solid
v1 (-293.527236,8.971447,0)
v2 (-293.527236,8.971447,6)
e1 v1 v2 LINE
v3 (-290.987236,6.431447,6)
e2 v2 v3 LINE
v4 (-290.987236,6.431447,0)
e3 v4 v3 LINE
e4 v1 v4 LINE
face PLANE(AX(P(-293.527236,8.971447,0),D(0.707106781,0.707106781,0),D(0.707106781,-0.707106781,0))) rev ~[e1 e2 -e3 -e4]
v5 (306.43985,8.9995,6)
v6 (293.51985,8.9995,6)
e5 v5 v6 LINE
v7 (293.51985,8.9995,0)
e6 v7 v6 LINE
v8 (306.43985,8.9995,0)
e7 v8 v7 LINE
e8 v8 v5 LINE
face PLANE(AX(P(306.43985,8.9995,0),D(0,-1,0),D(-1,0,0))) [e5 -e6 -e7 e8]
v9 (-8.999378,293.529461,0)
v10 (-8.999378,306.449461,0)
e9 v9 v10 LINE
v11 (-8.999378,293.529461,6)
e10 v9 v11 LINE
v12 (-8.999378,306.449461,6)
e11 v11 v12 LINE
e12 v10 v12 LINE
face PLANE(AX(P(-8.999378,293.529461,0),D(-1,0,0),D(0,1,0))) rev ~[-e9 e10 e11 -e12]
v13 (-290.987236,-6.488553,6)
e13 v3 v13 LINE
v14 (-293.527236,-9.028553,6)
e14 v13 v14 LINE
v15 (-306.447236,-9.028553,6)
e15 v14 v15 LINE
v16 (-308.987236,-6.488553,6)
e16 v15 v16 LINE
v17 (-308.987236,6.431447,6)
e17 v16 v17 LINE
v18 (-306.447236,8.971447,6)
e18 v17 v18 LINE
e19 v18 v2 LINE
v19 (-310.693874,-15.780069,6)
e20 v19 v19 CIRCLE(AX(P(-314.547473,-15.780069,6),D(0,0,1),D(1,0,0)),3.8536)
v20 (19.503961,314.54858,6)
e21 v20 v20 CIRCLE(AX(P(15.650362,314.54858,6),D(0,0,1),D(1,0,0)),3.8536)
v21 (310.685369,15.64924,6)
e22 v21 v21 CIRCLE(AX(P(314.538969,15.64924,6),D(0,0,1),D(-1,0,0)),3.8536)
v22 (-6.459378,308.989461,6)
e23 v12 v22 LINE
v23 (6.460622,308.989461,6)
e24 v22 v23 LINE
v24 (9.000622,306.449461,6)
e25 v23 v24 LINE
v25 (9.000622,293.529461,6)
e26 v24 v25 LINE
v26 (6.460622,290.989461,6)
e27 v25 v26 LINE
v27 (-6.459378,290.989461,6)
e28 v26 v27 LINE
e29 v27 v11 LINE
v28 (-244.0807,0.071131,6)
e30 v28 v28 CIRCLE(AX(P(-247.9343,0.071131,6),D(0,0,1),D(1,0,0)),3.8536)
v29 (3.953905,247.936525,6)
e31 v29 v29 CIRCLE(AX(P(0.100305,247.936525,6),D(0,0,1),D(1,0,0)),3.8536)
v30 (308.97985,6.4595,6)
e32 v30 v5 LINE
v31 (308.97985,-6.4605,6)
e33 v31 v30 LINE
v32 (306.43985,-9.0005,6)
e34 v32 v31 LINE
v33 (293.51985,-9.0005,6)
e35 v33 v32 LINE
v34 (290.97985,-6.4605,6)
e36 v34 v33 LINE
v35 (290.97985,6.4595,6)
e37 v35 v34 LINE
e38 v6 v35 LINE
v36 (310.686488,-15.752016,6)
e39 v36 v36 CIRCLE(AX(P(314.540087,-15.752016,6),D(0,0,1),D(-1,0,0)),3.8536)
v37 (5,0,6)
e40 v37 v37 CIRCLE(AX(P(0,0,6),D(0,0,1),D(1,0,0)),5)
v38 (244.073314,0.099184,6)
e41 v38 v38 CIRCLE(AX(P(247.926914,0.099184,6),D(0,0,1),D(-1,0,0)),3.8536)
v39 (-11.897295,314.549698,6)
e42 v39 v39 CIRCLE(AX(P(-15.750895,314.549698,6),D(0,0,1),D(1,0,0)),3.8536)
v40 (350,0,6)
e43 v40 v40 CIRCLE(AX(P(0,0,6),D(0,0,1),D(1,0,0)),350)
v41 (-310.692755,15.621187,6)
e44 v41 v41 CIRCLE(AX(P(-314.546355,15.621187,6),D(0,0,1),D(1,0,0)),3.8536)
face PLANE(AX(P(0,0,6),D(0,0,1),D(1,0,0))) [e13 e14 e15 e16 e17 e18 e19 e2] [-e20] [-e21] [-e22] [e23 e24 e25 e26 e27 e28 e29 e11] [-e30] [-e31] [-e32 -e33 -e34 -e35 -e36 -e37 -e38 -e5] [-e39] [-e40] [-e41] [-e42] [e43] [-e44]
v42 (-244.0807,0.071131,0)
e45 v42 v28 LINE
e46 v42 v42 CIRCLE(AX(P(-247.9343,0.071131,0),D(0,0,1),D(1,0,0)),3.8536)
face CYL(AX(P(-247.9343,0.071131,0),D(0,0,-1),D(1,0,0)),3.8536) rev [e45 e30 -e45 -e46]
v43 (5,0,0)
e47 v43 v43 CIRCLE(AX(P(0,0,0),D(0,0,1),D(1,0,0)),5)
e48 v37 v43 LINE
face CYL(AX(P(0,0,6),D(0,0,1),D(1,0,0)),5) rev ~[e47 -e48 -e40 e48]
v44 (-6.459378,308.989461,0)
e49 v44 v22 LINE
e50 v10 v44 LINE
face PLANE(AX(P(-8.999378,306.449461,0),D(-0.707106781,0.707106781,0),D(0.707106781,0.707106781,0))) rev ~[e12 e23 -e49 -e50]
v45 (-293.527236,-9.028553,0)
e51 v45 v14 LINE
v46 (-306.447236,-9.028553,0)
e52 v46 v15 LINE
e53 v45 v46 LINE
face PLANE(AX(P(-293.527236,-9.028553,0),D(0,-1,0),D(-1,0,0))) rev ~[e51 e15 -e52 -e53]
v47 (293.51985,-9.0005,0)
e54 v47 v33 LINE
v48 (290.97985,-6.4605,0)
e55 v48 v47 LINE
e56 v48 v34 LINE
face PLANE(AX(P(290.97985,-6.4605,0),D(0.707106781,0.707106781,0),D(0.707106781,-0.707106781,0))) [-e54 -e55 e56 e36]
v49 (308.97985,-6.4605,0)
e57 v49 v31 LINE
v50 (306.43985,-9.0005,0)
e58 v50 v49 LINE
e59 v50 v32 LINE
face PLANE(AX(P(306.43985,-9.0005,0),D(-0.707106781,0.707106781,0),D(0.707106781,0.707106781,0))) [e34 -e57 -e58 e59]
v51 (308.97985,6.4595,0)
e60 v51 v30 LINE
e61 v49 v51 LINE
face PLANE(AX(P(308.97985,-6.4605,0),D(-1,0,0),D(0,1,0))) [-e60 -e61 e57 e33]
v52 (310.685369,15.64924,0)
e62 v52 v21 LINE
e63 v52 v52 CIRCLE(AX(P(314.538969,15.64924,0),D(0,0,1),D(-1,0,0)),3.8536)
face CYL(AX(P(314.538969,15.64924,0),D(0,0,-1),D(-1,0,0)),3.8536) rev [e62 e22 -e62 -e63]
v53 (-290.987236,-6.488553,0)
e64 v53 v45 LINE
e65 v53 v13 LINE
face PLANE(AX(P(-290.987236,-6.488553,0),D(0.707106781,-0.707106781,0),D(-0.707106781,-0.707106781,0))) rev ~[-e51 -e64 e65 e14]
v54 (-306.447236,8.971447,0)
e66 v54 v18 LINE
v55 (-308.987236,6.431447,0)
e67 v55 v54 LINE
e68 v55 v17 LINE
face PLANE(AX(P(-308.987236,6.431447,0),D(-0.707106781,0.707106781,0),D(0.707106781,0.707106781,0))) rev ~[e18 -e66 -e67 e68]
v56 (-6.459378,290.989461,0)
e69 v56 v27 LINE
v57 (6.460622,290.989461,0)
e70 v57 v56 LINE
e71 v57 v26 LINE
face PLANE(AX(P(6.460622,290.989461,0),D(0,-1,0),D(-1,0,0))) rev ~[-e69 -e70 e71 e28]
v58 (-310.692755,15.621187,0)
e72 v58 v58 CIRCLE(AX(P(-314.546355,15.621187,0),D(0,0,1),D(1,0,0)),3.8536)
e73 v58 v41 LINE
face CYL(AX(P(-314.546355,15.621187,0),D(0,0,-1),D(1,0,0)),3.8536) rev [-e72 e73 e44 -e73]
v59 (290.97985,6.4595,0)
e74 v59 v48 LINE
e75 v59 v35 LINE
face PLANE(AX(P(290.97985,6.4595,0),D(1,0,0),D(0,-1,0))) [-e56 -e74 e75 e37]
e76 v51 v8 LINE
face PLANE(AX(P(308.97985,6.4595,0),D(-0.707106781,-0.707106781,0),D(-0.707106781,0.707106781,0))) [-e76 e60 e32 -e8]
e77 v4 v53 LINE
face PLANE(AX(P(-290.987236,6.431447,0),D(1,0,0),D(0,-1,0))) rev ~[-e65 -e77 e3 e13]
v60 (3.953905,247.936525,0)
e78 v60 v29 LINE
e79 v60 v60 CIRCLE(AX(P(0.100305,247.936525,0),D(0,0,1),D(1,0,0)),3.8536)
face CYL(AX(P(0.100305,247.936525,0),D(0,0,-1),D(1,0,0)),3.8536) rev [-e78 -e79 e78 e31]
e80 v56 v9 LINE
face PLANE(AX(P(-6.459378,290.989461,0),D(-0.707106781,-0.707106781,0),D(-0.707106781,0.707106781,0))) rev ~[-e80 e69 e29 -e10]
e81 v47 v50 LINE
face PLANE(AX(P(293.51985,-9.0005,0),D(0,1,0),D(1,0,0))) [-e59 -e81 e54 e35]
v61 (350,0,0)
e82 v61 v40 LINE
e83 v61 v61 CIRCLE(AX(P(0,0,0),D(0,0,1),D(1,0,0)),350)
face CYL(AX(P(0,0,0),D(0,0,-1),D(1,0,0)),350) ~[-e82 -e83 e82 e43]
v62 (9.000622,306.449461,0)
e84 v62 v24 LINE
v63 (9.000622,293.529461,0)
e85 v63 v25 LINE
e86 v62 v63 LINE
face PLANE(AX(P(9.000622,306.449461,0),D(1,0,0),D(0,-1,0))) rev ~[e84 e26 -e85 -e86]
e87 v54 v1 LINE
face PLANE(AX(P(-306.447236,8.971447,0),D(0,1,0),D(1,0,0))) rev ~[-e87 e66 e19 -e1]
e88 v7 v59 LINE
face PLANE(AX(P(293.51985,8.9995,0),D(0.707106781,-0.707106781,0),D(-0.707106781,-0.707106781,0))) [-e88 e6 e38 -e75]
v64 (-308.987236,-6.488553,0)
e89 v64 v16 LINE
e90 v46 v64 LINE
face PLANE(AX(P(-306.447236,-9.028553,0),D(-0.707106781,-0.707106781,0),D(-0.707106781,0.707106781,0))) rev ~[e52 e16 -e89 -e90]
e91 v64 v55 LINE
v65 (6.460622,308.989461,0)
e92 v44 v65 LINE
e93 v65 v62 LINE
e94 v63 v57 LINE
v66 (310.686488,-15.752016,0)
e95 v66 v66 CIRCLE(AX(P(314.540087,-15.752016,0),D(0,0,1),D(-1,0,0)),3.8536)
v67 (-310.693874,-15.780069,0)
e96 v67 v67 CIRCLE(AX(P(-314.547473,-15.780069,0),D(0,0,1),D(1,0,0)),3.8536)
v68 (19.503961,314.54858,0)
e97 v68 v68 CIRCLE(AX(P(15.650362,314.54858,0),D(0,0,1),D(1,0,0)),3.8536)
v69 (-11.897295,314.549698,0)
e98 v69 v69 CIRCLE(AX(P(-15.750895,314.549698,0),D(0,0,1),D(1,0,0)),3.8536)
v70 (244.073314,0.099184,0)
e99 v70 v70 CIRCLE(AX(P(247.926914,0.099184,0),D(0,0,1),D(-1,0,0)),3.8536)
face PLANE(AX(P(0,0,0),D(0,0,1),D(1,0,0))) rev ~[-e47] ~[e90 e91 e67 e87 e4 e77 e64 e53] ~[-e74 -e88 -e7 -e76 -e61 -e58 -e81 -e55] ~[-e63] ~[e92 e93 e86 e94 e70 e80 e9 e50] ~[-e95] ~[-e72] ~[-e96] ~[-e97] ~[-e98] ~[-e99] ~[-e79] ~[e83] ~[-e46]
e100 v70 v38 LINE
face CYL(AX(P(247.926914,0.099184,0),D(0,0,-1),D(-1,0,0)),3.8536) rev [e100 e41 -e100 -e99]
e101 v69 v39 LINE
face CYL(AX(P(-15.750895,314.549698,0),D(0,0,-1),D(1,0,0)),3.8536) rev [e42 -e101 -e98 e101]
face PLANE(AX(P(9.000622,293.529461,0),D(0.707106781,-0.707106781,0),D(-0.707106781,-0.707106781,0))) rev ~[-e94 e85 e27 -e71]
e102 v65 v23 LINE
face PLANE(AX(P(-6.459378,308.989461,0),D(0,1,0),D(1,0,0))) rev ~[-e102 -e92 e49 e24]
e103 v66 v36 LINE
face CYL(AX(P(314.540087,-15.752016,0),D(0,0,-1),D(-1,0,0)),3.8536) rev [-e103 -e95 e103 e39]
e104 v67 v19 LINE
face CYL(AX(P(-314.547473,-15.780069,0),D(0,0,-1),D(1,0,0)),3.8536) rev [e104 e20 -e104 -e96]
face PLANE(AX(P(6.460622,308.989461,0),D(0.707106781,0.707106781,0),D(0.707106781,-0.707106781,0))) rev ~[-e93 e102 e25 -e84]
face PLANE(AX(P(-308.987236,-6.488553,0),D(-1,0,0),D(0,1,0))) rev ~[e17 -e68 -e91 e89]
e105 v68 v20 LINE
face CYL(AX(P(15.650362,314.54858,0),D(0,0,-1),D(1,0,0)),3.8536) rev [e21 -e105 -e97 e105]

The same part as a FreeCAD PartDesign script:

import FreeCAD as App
import Part
import Sketcher

doc = App.newDocument("Part")
body = doc.addObject("PartDesign::Body", "Body")

# Sketch on XY plane
sketch1 = body.newObject("Sketcher::SketchObject", "Sketch")
sketch1.AttachmentSupport = (doc.getObject("XY_Plane"), [""])
sketch1.MapMode = "FlatFace"
sketch1.addGeometry([
    Part.Circle(App.Vector(0, 0, 0), App.Vector(0, 0, 1), 350),  # 0
    Part.Circle(App.Vector(-314.547473, -15.780069, 0), App.Vector(0, 0, 1), 3.8536),  # 1
    Part.LineSegment(App.Vector(-308.987236, 6.431447, 0), App.Vector(-306.447236, 8.971447, 0)),  # 2
    Part.LineSegment(App.Vector(-306.447236, 8.971447, 0), App.Vector(-293.527236, 8.971447, 0)),  # 3
    Part.LineSegment(App.Vector(-293.527236, 8.971447, 0), App.Vector(-290.987236, 6.431447, 0)),  # 4
    Part.LineSegment(App.Vector(-290.987236, 6.431447, 0), App.Vector(-290.987236, -6.488553, 0)),  # 5
    Part.LineSegment(App.Vector(-290.987236, -6.488553, 0), App.Vector(-293.527236, -9.028553, 0)),  # 6
    Part.LineSegment(App.Vector(-293.527236, -9.028553, 0), App.Vector(-306.447236, -9.028553, 0)),  # 7
    Part.LineSegment(App.Vector(-306.447236, -9.028553, 0), App.Vector(-308.987236, -6.488553, 0)),  # 8
    Part.LineSegment(App.Vector(-308.987236, -6.488553, 0), App.Vector(-308.987236, 6.431447, 0)),  # 9
    Part.Circle(App.Vector(-247.9343, 0.071131, 0), App.Vector(0, 0, 1), 3.8536),  # 10
    Part.Circle(App.Vector(-314.546355, 15.621187, 0), App.Vector(0, 0, 1), 3.8536),  # 11
    Part.Circle(App.Vector(247.926914, 0.099184, 0), App.Vector(0, 0, 1), 3.8536),  # 12
    Part.Circle(App.Vector(314.540087, -15.752016, 0), App.Vector(0, 0, 1), 3.8536),  # 13
    Part.LineSegment(App.Vector(306.43985, 8.9995, 0), App.Vector(308.97985, 6.4595, 0)),  # 14
    Part.LineSegment(App.Vector(308.97985, 6.4595, 0), App.Vector(308.97985, -6.4605, 0)),  # 15
    Part.LineSegment(App.Vector(308.97985, -6.4605, 0), App.Vector(306.43985, -9.0005, 0)),  # 16
    Part.LineSegment(App.Vector(306.43985, -9.0005, 0), App.Vector(293.51985, -9.0005, 0)),  # 17
    Part.LineSegment(App.Vector(293.51985, -9.0005, 0), App.Vector(290.97985, -6.4605, 0)),  # 18
    Part.LineSegment(App.Vector(290.97985, -6.4605, 0), App.Vector(290.97985, 6.4595, 0)),  # 19
    Part.LineSegment(App.Vector(290.97985, 6.4595, 0), App.Vector(293.51985, 8.9995, 0)),  # 20
    Part.LineSegment(App.Vector(293.51985, 8.9995, 0), App.Vector(306.43985, 8.9995, 0)),  # 21
    Part.Circle(App.Vector(314.538969, 15.64924, 0), App.Vector(0, 0, 1), 3.8536),  # 22
    Part.Circle(App.Vector(-15.750895, 314.549698, 0), App.Vector(0, 0, 1), 3.8536),  # 23
    Part.Circle(App.Vector(0.100305, 247.936525, 0), App.Vector(0, 0, 1), 3.8536),  # 24
    Part.LineSegment(App.Vector(6.460622, 308.989461, 0), App.Vector(9.000622, 306.449461, 0)),  # 25
    Part.LineSegment(App.Vector(9.000622, 306.449461, 0), App.Vector(9.000622, 293.529461, 0)),  # 26
    Part.LineSegment(App.Vector(9.000622, 293.529461, 0), App.Vector(6.460622, 290.989461, 0)),  # 27
    Part.LineSegment(App.Vector(6.460622, 290.989461, 0), App.Vector(-6.459378, 290.989461, 0)),  # 28
    Part.LineSegment(App.Vector(-6.459378, 290.989461, 0), App.Vector(-8.999378, 293.529461, 0)),  # 29
    Part.LineSegment(App.Vector(-8.999378, 293.529461, 0), App.Vector(-8.999378, 306.449461, 0)),  # 30
    Part.LineSegment(App.Vector(-8.999378, 306.449461, 0), App.Vector(-6.459378, 308.989461, 0)),  # 31
    Part.LineSegment(App.Vector(-6.459378, 308.989461, 0), App.Vector(6.460622, 308.989461, 0)),  # 32
    Part.Circle(App.Vector(15.650362, 314.54858, 0), App.Vector(0, 0, 1), 3.8536),  # 33
], False)
sketch1.addConstraint([
    Sketcher.Constraint("Coincident", 2, 2, 3, 1),
    Sketcher.Constraint("Coincident", 3, 2, 4, 1),
    Sketcher.Constraint("Coincident", 4, 2, 5, 1),
    Sketcher.Constraint("Coincident", 5, 2, 6, 1),
    Sketcher.Constraint("Coincident", 6, 2, 7, 1),
    Sketcher.Constraint("Coincident", 7, 2, 8, 1),
    Sketcher.Constraint("Coincident", 8, 2, 9, 1),
    Sketcher.Constraint("Coincident", 9, 2, 2, 1),
    Sketcher.Constraint("Coincident", 14, 2, 15, 1),
    Sketcher.Constraint("Coincident", 15, 2, 16, 1),
    Sketcher.Constraint("Coincident", 16, 2, 17, 1),
    Sketcher.Constraint("Coincident", 17, 2, 18, 1),
    Sketcher.Constraint("Coincident", 18, 2, 19, 1),
    Sketcher.Constraint("Coincident", 19, 2, 20, 1),
    Sketcher.Constraint("Coincident", 20, 2, 21, 1),
    Sketcher.Constraint("Coincident", 21, 2, 14, 1),
    Sketcher.Constraint("Coincident", 25, 2, 26, 1),
    Sketcher.Constraint("Coincident", 26, 2, 27, 1),
    Sketcher.Constraint("Coincident", 27, 2, 28, 1),
    Sketcher.Constraint("Coincident", 28, 2, 29, 1),
    Sketcher.Constraint("Coincident", 29, 2, 30, 1),
    Sketcher.Constraint("Coincident", 30, 2, 31, 1),
    Sketcher.Constraint("Coincident", 31, 2, 32, 1),
    Sketcher.Constraint("Coincident", 32, 2, 25, 1),
    Sketcher.Constraint("Horizontal", 3),
    Sketcher.Constraint("Vertical", 5),
    Sketcher.Constraint("Horizontal", 7),
    Sketcher.Constraint("Vertical", 9),
    Sketcher.Constraint("Vertical", 15),
    Sketcher.Constraint("Horizontal", 17),
    Sketcher.Constraint("Vertical", 19),
    Sketcher.Constraint("Horizontal", 21),
    Sketcher.Constraint("Vertical", 26),
    Sketcher.Constraint("Horizontal", 28),
    Sketcher.Constraint("Vertical", 30),
    Sketcher.Constraint("Horizontal", 32),
    Sketcher.Constraint("Coincident", 0, 3, -1, 1),
    Sketcher.Constraint("Equal", 1, 10),
    Sketcher.Constraint("Equal", 10, 11),
    Sketcher.Constraint("Equal", 11, 12),
    Sketcher.Constraint("Equal", 12, 13),
    Sketcher.Constraint("Equal", 13, 22),
    Sketcher.Constraint("Equal", 22, 23),
    Sketcher.Constraint("Equal", 23, 24),
    Sketcher.Constraint("Equal", 24, 33),
    Sketcher.Constraint("Perpendicular", 2, 4),
    Sketcher.Constraint("Perpendicular", 4, 6),
    Sketcher.Constraint("Perpendicular", 6, 8),
    Sketcher.Constraint("Parallel", 8, 14),
    Sketcher.Constraint("Perpendicular", 14, 16),
    Sketcher.Constraint("Perpendicular", 16, 18),
    Sketcher.Constraint("Perpendicular", 18, 20),
    Sketcher.Constraint("Perpendicular", 20, 25),
    Sketcher.Constraint("Perpendicular", 25, 27),
    Sketcher.Constraint("Perpendicular", 27, 29),
    Sketcher.Constraint("Perpendicular", 29, 31),
    Sketcher.Constraint("Horizontal", 5, 2, 8, 2),
    Sketcher.Constraint("Horizontal", 4, 2, 9, 2),
    Sketcher.Constraint("Horizontal", 15, 2, 18, 2),
    Sketcher.Constraint("Horizontal", 14, 2, 19, 2),
    Sketcher.Constraint("Horizontal", 26, 2, 29, 2),
    Sketcher.Constraint("Horizontal", 25, 2, 30, 2),
    Sketcher.Constraint("Vertical", 3, 2, 6, 2),
    Sketcher.Constraint("Vertical", 2, 2, 7, 2),
    Sketcher.Constraint("Vertical", 17, 2, 20, 2),
    Sketcher.Constraint("Vertical", 28, 2, 31, 2),
    Sketcher.Constraint("Equal", 7, 17),
    Sketcher.Constraint("Equal", 21, 28),
    Sketcher.Constraint("Equal", 32, 5),
    Sketcher.Constraint("Equal", 9, 15),
    Sketcher.Constraint("Equal", 19, 26),
    Sketcher.Constraint("Equal", 8, 14),
    Sketcher.Constraint("Equal", 20, 25),
    Sketcher.Constraint("Diameter", 0, 700.0),
    Sketcher.Constraint("DistanceY", 6, 2, 3, 2, 18.0),
    Sketcher.Constraint("Diameter", 1, 7.707199),
    Sketcher.Constraint("DistanceX", 3, 1, 3, 2, 12.92),
    Sketcher.Constraint("DistanceX", 10, 3, -1, 1, 247.9343),
    Sketcher.Constraint("DistanceY", -1, 1, 23, 3, 314.549698),
    Sketcher.Constraint("DistanceY", -1, 1, 14, 2, 6.4595),
    Sketcher.Constraint("DistanceY", 1, 3, 10, 3, 15.8512),
    Sketcher.Constraint("DistanceY", 13, 3, 12, 3, 15.8512),
    Sketcher.Constraint("DistanceX", 23, 3, 24, 3, 15.8512),
    Sketcher.Constraint("DistanceY", 1, 3, -1, 1, 15.780069),
    Sketcher.Constraint("DistanceX", -1, 1, 22, 3, 314.538969),
    Sketcher.Constraint("DistanceY", -1, 1, 22, 3, 15.64924),
    Sketcher.Constraint("DistanceX", -1, 1, 33, 3, 15.650362),
    Sketcher.Constraint("DistanceY", -1, 1, 33, 3, 314.54858),
    Sketcher.Constraint("DistanceX", -1, 1, 14, 2, 308.97985),
    Sketcher.Constraint("DistanceX", -1, 1, 25, 2, 9.000622),
    Sketcher.Constraint("DistanceY", -1, 1, 25, 2, 306.449461),
    Sketcher.Constraint("DistanceX", 1, 3, 11, 3, 0.001118),
    Sketcher.Constraint("DistanceX", 11, 3, 12, 3, 562.473269),
    Sketcher.Constraint("DistanceX", 1, 3, 13, 3, 629.087561),
    Sketcher.Constraint("DistanceX", 22, 3, 13, 3, 0.001118),
    Sketcher.Constraint("DistanceX", 23, 3, 12, 3, 263.677809),
    Sketcher.Constraint("DistanceY", 11, 3, 23, 3, 298.928511),
    Sketcher.Constraint("DistanceY", 12, 3, 24, 3, 247.837341),
    Sketcher.Constraint("DistanceX", 11, 3, 2, 2, 8.099119),
    Sketcher.Constraint("DistanceY", 2, 2, 11, 3, 6.64974),
    Sketcher.Constraint("DistanceY", -1, 1, 12, 3, 0.099184),
])
pad1 = body.newObject("PartDesign::Pad", "Pad")
pad1.Profile = sketch1
pad1.Length = 6

# Sketch on XY plane
sketch2 = body.newObject("Sketcher::SketchObject", "Sketch001")
sketch2.AttachmentSupport = (doc.getObject("XY_Plane"), [""])
sketch2.MapMode = "FlatFace"
sketch2.AttachmentOffset = App.Placement(App.Vector(0, 0, 6), App.Rotation())
sketch2.addGeometry(Part.Circle(App.Vector(0, 0, 0), App.Vector(0, 0, 1), 5), False)
sketch2.addConstraint([
    Sketcher.Constraint("Coincident", 0, 3, -1, 1),
    Sketcher.Constraint("Diameter", 0, 10.0),
])
pocket1 = body.newObject("PartDesign::Pocket", "Pocket")
pocket1.Profile = sketch2
pocket1.Length = 23

doc.recompute()
